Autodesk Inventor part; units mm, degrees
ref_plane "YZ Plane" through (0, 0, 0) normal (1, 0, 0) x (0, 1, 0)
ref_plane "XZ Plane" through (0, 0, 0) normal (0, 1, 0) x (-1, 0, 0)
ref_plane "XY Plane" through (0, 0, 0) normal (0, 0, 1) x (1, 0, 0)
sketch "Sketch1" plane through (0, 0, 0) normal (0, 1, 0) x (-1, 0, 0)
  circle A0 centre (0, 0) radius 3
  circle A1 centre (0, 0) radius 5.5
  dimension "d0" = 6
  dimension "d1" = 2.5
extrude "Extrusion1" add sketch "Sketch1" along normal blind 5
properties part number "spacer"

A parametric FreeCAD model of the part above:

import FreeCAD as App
import Part
import Sketcher
from FreeCAD import Vector
Q = App.Units.Quantity

doc = App.newDocument("Part")
body = doc.addObject("PartDesign::Body", "Body")

sketch1 = body.newObject("Sketcher::SketchObject", "Sketch")
sketch1.AttachmentSupport = (doc.getObject("XZ_Plane"), [""])
sketch1.MapMode = "FlatFace"
sketch1.addGeometry(Part.Circle(Vector(0, 0, 0), Vector(0, 0, 1), 5.5), False)
sketch1.addGeometry(Part.Circle(Vector(0, 0, 0), Vector(0, 0, 1), 3), False)
sketch1.addConstraint(Sketcher.Constraint("Coincident", 0, 3, -1, 1))
sketch1.addConstraint(Sketcher.Constraint("Coincident", 1, 3, -1, 1))
sketch1.addConstraint(Sketcher.Constraint("Diameter", 1, Q("6 mm")))
sketch1.addConstraint(Sketcher.Constraint("Diameter", 0, Q("11 mm")))
pad1 = body.newObject("PartDesign::Pad", "Pad")
pad1.Profile = sketch1
pad1.Length = 5
pad1.Reversed = True

doc.recompute()
